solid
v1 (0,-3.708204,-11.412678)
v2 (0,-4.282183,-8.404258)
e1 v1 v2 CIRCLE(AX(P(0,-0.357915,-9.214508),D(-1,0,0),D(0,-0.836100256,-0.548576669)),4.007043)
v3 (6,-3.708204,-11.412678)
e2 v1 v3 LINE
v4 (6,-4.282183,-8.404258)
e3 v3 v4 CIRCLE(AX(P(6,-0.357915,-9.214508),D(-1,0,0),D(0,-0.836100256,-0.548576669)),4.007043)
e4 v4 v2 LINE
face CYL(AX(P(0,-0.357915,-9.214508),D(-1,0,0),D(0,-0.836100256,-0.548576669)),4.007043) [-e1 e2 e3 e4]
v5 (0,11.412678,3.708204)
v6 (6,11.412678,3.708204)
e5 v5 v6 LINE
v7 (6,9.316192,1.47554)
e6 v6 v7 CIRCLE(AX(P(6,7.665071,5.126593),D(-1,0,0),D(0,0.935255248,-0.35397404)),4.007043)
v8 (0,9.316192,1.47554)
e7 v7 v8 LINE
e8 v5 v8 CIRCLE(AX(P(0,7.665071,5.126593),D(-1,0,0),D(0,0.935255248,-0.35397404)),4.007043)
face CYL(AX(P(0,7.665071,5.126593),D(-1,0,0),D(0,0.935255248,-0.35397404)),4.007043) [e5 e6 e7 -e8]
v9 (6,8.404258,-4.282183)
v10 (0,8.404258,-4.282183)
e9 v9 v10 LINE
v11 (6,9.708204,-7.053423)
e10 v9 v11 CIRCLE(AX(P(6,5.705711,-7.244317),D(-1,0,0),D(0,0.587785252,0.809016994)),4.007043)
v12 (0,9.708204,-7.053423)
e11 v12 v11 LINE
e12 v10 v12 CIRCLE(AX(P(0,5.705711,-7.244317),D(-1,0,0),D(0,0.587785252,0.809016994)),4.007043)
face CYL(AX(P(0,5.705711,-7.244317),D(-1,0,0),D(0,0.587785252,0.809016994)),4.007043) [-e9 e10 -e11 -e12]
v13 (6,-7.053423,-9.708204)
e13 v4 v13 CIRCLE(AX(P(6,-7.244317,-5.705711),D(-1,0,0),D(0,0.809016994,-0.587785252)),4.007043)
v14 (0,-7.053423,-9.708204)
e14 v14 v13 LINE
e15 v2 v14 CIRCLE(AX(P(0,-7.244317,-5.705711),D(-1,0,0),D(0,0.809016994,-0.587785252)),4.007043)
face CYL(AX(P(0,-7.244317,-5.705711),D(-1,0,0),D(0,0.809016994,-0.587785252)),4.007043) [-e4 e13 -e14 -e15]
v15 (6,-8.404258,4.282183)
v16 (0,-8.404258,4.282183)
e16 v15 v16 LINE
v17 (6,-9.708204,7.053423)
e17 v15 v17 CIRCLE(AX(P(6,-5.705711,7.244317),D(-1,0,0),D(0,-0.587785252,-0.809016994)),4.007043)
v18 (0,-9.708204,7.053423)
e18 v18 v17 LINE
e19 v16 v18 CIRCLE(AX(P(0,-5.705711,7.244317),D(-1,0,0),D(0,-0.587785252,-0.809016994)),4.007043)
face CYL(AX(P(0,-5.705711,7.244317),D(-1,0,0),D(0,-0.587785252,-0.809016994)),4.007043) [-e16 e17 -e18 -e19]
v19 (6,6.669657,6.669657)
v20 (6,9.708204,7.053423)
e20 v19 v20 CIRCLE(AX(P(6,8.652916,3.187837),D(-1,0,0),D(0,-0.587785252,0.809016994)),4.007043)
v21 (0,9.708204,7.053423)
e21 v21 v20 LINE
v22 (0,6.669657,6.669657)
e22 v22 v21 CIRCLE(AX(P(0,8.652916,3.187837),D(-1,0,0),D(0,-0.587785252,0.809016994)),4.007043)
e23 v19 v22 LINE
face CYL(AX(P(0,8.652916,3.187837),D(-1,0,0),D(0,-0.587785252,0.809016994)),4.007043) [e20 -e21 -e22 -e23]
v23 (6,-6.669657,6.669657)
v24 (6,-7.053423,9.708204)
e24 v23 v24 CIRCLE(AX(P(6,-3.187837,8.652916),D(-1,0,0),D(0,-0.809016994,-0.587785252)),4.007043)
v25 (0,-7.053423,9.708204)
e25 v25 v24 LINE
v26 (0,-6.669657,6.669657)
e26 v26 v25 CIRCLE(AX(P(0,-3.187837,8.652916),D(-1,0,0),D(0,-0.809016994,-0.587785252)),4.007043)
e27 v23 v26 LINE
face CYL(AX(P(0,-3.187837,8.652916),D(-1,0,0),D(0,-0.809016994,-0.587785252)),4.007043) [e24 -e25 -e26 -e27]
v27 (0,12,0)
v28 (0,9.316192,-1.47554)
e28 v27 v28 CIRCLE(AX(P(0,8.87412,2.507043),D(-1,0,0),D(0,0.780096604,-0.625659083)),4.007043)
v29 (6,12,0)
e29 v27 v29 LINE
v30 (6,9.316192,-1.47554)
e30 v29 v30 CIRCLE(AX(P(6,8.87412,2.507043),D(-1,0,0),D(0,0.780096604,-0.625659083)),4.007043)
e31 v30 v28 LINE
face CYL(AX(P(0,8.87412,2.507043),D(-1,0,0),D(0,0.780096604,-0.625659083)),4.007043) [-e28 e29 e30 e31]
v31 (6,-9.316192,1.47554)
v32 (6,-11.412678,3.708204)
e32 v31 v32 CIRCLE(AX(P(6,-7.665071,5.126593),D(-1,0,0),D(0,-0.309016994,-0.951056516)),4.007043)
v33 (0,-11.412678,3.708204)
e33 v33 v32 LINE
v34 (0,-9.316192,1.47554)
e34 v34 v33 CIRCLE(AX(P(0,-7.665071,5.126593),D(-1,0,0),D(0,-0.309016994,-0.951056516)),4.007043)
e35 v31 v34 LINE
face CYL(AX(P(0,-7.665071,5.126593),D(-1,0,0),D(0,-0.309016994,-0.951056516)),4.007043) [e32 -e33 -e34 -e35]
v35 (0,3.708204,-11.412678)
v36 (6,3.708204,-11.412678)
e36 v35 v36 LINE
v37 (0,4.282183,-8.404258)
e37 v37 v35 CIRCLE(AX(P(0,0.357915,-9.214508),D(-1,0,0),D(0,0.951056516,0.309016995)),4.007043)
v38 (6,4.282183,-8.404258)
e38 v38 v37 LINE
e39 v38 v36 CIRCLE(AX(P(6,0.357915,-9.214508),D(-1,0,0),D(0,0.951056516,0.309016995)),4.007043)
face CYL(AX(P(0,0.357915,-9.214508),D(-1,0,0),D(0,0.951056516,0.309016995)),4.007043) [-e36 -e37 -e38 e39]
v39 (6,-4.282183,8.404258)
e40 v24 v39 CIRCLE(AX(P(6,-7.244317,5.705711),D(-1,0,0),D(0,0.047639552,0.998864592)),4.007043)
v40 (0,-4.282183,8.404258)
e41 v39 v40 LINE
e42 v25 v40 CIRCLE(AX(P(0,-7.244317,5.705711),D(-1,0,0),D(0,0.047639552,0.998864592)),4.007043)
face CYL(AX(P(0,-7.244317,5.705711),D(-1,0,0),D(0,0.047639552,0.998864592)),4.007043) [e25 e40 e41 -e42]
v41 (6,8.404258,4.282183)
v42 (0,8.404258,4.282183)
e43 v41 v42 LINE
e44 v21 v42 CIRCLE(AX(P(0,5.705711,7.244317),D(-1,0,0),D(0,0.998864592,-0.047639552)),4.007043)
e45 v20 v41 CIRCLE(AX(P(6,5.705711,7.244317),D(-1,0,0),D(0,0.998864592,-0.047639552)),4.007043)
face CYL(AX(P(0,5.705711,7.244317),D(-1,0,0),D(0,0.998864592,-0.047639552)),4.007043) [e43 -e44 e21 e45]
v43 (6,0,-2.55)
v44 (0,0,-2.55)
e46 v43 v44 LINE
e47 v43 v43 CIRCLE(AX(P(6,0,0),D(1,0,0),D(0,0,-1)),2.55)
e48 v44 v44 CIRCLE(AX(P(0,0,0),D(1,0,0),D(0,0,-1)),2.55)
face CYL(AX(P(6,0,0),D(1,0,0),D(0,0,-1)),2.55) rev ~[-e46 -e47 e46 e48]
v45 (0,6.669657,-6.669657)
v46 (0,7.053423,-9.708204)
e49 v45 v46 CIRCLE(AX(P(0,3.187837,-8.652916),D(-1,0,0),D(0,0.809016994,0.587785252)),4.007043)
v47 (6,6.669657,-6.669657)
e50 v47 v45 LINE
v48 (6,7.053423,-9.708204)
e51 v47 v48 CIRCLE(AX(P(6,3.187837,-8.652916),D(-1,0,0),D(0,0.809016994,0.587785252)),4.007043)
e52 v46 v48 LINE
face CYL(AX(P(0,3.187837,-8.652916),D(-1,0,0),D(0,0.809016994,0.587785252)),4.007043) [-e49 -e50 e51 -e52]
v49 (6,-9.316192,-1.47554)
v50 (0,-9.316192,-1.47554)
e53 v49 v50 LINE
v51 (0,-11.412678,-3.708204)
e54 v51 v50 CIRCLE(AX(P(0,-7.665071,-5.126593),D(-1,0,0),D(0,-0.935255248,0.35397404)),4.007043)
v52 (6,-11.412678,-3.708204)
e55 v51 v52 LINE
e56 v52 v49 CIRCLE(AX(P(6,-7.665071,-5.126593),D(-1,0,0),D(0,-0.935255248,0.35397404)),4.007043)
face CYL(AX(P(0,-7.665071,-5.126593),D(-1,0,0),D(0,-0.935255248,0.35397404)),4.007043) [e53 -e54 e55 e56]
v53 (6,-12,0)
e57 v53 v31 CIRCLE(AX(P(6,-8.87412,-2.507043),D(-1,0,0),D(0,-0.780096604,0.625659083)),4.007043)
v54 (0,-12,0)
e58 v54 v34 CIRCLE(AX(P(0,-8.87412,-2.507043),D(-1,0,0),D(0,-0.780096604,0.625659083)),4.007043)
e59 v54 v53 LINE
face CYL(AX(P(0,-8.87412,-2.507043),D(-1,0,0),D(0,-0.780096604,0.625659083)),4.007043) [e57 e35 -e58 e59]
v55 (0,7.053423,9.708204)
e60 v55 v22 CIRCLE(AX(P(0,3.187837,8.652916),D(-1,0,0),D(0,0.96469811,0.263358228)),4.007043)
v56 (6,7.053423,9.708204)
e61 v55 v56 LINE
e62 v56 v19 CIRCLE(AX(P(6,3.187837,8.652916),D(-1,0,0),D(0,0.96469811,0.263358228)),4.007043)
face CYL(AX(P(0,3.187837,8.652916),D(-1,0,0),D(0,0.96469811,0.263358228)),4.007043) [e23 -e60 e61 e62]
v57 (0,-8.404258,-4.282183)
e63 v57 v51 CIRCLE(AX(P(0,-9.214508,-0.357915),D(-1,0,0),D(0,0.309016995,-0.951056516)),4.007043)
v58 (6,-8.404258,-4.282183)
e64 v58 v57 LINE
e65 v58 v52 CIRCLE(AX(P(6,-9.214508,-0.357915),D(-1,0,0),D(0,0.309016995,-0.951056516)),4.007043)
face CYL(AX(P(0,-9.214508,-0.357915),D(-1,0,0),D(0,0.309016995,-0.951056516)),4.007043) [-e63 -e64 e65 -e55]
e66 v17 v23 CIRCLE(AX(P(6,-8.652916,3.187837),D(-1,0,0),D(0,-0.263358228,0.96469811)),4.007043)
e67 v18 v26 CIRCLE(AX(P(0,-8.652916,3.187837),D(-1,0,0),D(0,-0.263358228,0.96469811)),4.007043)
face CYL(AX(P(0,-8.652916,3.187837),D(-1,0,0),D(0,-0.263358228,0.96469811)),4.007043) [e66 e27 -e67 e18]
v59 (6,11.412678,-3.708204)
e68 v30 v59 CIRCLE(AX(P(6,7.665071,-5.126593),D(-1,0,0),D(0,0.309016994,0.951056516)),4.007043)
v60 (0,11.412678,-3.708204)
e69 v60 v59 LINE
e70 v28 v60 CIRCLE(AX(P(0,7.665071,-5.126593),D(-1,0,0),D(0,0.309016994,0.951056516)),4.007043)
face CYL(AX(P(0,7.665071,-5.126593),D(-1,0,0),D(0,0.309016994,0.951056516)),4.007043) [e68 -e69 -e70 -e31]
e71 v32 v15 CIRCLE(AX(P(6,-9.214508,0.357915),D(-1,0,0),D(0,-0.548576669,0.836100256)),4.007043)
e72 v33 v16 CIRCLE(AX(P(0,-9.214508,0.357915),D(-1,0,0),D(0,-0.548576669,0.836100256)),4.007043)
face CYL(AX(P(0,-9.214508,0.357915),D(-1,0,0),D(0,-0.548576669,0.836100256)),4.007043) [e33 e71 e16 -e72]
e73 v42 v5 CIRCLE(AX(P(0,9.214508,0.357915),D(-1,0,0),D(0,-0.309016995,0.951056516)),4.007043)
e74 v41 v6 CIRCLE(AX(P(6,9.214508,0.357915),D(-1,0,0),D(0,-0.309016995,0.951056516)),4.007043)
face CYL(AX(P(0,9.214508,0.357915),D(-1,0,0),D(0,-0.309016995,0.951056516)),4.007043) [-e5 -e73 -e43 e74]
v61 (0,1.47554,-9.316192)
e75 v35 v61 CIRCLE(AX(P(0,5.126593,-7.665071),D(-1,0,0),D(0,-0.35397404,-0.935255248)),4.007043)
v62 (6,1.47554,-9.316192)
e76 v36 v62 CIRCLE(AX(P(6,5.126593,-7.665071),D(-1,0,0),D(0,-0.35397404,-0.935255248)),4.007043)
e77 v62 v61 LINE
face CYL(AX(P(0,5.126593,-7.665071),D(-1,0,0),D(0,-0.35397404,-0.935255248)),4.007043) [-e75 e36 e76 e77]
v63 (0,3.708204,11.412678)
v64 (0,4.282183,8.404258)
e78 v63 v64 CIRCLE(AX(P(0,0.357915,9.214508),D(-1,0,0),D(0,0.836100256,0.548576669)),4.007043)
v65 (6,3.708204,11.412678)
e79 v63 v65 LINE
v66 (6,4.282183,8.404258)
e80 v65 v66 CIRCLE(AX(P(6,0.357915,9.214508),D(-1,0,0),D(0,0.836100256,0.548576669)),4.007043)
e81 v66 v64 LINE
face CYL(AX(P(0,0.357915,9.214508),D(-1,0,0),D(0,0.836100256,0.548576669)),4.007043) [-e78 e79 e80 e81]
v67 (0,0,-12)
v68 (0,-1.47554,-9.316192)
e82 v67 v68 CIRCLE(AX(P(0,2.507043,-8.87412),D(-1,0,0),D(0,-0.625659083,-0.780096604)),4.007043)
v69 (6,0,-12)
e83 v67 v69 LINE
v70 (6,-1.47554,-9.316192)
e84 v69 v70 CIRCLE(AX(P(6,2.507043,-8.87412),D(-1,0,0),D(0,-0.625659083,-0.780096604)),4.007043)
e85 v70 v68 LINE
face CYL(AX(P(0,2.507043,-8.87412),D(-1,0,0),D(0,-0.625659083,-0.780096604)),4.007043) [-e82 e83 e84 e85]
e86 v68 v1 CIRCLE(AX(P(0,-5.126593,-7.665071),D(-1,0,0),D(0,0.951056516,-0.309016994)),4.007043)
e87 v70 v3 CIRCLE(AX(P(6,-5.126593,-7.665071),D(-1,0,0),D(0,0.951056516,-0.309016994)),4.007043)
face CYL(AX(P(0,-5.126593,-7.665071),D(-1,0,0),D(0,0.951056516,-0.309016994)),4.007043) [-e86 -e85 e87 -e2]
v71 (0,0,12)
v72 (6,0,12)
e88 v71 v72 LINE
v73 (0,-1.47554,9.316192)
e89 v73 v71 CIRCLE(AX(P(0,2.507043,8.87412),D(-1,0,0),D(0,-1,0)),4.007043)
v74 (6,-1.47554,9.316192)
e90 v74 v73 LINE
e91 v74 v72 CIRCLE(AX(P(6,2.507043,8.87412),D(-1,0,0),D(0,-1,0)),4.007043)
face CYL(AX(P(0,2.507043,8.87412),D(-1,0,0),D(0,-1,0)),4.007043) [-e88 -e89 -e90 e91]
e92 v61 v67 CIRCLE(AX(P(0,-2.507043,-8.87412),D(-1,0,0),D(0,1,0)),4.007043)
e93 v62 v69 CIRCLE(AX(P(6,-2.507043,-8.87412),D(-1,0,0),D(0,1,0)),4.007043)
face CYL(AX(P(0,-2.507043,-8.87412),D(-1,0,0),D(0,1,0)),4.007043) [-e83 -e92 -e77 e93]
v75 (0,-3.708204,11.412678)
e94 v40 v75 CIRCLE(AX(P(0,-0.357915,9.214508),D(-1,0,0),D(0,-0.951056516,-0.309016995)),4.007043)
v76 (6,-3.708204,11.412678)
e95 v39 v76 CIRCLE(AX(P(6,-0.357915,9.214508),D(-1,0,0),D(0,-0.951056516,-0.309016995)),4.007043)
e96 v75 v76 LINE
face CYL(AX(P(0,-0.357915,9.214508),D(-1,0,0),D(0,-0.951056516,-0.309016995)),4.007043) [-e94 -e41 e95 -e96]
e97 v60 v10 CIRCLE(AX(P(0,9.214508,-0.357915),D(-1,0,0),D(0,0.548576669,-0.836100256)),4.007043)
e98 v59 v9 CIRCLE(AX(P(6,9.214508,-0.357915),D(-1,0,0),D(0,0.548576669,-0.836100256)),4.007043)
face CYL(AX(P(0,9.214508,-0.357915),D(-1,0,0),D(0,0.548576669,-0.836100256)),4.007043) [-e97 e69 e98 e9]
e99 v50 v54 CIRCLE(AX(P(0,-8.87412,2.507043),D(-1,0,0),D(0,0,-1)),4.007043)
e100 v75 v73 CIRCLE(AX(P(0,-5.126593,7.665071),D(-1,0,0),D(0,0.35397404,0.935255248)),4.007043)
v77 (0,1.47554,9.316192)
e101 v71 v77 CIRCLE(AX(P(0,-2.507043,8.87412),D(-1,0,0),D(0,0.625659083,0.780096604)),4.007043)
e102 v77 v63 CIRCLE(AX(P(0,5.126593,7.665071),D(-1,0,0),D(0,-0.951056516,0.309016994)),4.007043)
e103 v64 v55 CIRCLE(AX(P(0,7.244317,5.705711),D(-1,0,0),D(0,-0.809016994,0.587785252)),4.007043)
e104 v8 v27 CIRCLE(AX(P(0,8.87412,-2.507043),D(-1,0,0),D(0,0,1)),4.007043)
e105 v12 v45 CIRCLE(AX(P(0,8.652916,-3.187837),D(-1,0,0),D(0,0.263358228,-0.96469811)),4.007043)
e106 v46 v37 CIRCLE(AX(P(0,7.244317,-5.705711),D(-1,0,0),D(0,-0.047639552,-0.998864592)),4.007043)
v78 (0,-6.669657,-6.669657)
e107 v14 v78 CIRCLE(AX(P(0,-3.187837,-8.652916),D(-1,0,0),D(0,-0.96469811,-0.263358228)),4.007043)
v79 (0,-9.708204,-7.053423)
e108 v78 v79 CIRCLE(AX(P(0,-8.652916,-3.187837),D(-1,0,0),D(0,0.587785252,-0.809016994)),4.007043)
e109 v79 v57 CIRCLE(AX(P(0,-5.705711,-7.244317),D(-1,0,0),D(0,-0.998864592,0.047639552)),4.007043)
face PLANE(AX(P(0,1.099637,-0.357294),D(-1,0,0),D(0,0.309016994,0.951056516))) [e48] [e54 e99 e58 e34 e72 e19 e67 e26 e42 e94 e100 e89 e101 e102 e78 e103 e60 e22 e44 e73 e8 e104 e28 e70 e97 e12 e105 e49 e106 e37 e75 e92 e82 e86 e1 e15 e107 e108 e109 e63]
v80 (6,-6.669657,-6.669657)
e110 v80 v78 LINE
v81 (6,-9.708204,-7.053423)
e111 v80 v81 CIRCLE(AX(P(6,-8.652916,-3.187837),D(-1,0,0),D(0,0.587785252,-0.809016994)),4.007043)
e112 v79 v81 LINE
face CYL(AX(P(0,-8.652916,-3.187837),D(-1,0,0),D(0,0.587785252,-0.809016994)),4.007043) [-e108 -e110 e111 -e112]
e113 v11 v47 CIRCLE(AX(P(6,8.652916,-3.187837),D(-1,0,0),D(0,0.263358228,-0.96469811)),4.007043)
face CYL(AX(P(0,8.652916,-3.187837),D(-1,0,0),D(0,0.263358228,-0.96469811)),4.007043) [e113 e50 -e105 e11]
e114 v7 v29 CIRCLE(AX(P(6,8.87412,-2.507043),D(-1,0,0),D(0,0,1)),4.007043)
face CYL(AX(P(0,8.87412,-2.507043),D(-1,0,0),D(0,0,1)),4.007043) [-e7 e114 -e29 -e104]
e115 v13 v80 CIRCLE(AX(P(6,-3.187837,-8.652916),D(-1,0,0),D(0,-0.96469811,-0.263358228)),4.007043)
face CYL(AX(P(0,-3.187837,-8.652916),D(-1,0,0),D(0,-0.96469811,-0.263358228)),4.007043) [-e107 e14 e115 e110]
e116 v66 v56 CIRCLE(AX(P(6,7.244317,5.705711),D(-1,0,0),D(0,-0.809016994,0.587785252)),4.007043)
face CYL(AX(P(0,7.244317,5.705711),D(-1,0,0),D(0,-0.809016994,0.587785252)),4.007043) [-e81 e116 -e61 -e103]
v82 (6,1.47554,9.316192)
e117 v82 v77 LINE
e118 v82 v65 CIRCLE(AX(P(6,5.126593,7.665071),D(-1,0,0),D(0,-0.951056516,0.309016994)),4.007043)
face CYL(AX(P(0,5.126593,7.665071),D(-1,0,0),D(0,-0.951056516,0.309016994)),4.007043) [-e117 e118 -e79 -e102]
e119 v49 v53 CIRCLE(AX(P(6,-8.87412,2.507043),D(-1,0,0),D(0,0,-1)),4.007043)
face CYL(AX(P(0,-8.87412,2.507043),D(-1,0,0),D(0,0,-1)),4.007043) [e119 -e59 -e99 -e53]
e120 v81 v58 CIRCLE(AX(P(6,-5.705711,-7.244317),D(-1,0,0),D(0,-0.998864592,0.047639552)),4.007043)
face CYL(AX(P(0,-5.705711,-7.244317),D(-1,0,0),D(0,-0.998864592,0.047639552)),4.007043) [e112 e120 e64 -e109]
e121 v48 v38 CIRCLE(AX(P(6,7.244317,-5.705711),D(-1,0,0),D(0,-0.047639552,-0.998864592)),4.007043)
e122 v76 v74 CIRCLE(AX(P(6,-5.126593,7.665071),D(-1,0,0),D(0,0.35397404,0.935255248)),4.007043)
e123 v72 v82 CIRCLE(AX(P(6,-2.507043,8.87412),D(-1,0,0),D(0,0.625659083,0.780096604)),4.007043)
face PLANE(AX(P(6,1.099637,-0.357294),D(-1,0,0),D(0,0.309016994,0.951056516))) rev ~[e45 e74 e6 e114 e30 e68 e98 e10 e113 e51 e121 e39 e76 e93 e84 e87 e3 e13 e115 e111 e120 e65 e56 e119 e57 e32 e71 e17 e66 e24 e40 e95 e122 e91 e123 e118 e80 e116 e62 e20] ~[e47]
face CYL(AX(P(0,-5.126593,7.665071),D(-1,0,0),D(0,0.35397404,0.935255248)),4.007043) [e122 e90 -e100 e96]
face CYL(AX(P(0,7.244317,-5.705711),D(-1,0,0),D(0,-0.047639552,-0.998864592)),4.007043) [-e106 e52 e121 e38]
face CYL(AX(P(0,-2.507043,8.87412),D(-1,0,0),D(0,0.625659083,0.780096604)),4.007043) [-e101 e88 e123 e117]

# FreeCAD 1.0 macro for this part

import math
import FreeCAD as App
import Part
import Sketcher

V = App.Vector

doc = App.newDocument("Part")
body = doc.addObject("PartDesign::Body", "Body")

sketch1 = doc.addObject("Sketcher::SketchObject", "Sketch")
body.addObject(sketch1)
sketch1.AttachmentSupport = (doc.YZ_Plane, [""])
sketch1.MapMode = "FlatFace"
sketch1.addGeometry(Part.ArcOfCircle(Part.Circle(V(8.9, 2.5, 0), V(0, 0, 1), 4), math.radians(-90), math.radians(-39)), False)
sketch1.addGeometry(Part.ArcOfCircle(Part.Circle(V(8.9, -2.5, 0), V(0, 0, 1), 4), math.radians(39), math.radians(90)), False)
sketch1.addGeometry(Part.ArcOfCircle(Part.Circle(V(0, 0, 0), V(0, 0, 1), 9), math.radians(10), math.radians(350)), False)
sketch1.addConstraint(Sketcher.Constraint("Coincident", 0, 2, 1, 1))
sketch1.addConstraint(Sketcher.Constraint("Coincident", 1, 2, 2, 1))
sketch1.addConstraint(Sketcher.Constraint("Coincident", 2, 2, 0, 1))
sketch1.addConstraint(Sketcher.Constraint("Coincident", 2, 3, -1, 1))
sketch1.addConstraint(Sketcher.Constraint("Equal", 0, 1))
sketch1.addConstraint(Sketcher.Constraint("Symmetric", 0, 3, 1, 3, -1))
sketch1.addConstraint(Sketcher.Constraint("Vertical", 0, 3, 1, 2))
sketch1.addConstraint(Sketcher.Constraint("Radius", 2, 9.0))
sketch1.addConstraint(Sketcher.Constraint("DistanceX", -1, 1, 0, 2, 12.0))
sketch1.addConstraint(Sketcher.Constraint("DistanceY", 2, 2, 1, 2, 3.0))
pad1 = doc.addObject("PartDesign::Pad", "Pad")
body.addObject(pad1)
pad1.Profile = sketch1
pad1.Length = 6
doc.recompute()

polarpattern = doc.addObject("PartDesign::PolarPattern", "PolarPattern")
body.addObject(polarpattern)
polarpattern.Originals = [pad1]
polarpattern.Axis = (doc.X_Axis, [""])
polarpattern.Angle = 360
polarpattern.Occurrences = 20
body.Tip = polarpattern

sketch2 = doc.addObject("Sketcher::SketchObject", "Sketch001")
body.addObject(sketch2)
sketch2.AttachmentSupport = (doc.YZ_Plane, [""])
sketch2.MapMode = "FlatFace"
sketch2.AttachmentOffset = App.Placement(V(0, 0, 6), App.Rotation())
sketch2.addGeometry(Part.Circle(V(0, 0, 0), V(0, 0, 1), 2.5), False)
sketch2.addConstraint(Sketcher.Constraint("Coincident", 0, 3, -1, 1))
sketch2.addConstraint(Sketcher.Constraint("Diameter", 0, 5.1))
pocket1 = doc.addObject("PartDesign::Pocket", "Pocket")
body.addObject(pocket1)
pocket1.Profile = sketch2
pocket1.Type = "ThroughAll"

doc.recompute()
